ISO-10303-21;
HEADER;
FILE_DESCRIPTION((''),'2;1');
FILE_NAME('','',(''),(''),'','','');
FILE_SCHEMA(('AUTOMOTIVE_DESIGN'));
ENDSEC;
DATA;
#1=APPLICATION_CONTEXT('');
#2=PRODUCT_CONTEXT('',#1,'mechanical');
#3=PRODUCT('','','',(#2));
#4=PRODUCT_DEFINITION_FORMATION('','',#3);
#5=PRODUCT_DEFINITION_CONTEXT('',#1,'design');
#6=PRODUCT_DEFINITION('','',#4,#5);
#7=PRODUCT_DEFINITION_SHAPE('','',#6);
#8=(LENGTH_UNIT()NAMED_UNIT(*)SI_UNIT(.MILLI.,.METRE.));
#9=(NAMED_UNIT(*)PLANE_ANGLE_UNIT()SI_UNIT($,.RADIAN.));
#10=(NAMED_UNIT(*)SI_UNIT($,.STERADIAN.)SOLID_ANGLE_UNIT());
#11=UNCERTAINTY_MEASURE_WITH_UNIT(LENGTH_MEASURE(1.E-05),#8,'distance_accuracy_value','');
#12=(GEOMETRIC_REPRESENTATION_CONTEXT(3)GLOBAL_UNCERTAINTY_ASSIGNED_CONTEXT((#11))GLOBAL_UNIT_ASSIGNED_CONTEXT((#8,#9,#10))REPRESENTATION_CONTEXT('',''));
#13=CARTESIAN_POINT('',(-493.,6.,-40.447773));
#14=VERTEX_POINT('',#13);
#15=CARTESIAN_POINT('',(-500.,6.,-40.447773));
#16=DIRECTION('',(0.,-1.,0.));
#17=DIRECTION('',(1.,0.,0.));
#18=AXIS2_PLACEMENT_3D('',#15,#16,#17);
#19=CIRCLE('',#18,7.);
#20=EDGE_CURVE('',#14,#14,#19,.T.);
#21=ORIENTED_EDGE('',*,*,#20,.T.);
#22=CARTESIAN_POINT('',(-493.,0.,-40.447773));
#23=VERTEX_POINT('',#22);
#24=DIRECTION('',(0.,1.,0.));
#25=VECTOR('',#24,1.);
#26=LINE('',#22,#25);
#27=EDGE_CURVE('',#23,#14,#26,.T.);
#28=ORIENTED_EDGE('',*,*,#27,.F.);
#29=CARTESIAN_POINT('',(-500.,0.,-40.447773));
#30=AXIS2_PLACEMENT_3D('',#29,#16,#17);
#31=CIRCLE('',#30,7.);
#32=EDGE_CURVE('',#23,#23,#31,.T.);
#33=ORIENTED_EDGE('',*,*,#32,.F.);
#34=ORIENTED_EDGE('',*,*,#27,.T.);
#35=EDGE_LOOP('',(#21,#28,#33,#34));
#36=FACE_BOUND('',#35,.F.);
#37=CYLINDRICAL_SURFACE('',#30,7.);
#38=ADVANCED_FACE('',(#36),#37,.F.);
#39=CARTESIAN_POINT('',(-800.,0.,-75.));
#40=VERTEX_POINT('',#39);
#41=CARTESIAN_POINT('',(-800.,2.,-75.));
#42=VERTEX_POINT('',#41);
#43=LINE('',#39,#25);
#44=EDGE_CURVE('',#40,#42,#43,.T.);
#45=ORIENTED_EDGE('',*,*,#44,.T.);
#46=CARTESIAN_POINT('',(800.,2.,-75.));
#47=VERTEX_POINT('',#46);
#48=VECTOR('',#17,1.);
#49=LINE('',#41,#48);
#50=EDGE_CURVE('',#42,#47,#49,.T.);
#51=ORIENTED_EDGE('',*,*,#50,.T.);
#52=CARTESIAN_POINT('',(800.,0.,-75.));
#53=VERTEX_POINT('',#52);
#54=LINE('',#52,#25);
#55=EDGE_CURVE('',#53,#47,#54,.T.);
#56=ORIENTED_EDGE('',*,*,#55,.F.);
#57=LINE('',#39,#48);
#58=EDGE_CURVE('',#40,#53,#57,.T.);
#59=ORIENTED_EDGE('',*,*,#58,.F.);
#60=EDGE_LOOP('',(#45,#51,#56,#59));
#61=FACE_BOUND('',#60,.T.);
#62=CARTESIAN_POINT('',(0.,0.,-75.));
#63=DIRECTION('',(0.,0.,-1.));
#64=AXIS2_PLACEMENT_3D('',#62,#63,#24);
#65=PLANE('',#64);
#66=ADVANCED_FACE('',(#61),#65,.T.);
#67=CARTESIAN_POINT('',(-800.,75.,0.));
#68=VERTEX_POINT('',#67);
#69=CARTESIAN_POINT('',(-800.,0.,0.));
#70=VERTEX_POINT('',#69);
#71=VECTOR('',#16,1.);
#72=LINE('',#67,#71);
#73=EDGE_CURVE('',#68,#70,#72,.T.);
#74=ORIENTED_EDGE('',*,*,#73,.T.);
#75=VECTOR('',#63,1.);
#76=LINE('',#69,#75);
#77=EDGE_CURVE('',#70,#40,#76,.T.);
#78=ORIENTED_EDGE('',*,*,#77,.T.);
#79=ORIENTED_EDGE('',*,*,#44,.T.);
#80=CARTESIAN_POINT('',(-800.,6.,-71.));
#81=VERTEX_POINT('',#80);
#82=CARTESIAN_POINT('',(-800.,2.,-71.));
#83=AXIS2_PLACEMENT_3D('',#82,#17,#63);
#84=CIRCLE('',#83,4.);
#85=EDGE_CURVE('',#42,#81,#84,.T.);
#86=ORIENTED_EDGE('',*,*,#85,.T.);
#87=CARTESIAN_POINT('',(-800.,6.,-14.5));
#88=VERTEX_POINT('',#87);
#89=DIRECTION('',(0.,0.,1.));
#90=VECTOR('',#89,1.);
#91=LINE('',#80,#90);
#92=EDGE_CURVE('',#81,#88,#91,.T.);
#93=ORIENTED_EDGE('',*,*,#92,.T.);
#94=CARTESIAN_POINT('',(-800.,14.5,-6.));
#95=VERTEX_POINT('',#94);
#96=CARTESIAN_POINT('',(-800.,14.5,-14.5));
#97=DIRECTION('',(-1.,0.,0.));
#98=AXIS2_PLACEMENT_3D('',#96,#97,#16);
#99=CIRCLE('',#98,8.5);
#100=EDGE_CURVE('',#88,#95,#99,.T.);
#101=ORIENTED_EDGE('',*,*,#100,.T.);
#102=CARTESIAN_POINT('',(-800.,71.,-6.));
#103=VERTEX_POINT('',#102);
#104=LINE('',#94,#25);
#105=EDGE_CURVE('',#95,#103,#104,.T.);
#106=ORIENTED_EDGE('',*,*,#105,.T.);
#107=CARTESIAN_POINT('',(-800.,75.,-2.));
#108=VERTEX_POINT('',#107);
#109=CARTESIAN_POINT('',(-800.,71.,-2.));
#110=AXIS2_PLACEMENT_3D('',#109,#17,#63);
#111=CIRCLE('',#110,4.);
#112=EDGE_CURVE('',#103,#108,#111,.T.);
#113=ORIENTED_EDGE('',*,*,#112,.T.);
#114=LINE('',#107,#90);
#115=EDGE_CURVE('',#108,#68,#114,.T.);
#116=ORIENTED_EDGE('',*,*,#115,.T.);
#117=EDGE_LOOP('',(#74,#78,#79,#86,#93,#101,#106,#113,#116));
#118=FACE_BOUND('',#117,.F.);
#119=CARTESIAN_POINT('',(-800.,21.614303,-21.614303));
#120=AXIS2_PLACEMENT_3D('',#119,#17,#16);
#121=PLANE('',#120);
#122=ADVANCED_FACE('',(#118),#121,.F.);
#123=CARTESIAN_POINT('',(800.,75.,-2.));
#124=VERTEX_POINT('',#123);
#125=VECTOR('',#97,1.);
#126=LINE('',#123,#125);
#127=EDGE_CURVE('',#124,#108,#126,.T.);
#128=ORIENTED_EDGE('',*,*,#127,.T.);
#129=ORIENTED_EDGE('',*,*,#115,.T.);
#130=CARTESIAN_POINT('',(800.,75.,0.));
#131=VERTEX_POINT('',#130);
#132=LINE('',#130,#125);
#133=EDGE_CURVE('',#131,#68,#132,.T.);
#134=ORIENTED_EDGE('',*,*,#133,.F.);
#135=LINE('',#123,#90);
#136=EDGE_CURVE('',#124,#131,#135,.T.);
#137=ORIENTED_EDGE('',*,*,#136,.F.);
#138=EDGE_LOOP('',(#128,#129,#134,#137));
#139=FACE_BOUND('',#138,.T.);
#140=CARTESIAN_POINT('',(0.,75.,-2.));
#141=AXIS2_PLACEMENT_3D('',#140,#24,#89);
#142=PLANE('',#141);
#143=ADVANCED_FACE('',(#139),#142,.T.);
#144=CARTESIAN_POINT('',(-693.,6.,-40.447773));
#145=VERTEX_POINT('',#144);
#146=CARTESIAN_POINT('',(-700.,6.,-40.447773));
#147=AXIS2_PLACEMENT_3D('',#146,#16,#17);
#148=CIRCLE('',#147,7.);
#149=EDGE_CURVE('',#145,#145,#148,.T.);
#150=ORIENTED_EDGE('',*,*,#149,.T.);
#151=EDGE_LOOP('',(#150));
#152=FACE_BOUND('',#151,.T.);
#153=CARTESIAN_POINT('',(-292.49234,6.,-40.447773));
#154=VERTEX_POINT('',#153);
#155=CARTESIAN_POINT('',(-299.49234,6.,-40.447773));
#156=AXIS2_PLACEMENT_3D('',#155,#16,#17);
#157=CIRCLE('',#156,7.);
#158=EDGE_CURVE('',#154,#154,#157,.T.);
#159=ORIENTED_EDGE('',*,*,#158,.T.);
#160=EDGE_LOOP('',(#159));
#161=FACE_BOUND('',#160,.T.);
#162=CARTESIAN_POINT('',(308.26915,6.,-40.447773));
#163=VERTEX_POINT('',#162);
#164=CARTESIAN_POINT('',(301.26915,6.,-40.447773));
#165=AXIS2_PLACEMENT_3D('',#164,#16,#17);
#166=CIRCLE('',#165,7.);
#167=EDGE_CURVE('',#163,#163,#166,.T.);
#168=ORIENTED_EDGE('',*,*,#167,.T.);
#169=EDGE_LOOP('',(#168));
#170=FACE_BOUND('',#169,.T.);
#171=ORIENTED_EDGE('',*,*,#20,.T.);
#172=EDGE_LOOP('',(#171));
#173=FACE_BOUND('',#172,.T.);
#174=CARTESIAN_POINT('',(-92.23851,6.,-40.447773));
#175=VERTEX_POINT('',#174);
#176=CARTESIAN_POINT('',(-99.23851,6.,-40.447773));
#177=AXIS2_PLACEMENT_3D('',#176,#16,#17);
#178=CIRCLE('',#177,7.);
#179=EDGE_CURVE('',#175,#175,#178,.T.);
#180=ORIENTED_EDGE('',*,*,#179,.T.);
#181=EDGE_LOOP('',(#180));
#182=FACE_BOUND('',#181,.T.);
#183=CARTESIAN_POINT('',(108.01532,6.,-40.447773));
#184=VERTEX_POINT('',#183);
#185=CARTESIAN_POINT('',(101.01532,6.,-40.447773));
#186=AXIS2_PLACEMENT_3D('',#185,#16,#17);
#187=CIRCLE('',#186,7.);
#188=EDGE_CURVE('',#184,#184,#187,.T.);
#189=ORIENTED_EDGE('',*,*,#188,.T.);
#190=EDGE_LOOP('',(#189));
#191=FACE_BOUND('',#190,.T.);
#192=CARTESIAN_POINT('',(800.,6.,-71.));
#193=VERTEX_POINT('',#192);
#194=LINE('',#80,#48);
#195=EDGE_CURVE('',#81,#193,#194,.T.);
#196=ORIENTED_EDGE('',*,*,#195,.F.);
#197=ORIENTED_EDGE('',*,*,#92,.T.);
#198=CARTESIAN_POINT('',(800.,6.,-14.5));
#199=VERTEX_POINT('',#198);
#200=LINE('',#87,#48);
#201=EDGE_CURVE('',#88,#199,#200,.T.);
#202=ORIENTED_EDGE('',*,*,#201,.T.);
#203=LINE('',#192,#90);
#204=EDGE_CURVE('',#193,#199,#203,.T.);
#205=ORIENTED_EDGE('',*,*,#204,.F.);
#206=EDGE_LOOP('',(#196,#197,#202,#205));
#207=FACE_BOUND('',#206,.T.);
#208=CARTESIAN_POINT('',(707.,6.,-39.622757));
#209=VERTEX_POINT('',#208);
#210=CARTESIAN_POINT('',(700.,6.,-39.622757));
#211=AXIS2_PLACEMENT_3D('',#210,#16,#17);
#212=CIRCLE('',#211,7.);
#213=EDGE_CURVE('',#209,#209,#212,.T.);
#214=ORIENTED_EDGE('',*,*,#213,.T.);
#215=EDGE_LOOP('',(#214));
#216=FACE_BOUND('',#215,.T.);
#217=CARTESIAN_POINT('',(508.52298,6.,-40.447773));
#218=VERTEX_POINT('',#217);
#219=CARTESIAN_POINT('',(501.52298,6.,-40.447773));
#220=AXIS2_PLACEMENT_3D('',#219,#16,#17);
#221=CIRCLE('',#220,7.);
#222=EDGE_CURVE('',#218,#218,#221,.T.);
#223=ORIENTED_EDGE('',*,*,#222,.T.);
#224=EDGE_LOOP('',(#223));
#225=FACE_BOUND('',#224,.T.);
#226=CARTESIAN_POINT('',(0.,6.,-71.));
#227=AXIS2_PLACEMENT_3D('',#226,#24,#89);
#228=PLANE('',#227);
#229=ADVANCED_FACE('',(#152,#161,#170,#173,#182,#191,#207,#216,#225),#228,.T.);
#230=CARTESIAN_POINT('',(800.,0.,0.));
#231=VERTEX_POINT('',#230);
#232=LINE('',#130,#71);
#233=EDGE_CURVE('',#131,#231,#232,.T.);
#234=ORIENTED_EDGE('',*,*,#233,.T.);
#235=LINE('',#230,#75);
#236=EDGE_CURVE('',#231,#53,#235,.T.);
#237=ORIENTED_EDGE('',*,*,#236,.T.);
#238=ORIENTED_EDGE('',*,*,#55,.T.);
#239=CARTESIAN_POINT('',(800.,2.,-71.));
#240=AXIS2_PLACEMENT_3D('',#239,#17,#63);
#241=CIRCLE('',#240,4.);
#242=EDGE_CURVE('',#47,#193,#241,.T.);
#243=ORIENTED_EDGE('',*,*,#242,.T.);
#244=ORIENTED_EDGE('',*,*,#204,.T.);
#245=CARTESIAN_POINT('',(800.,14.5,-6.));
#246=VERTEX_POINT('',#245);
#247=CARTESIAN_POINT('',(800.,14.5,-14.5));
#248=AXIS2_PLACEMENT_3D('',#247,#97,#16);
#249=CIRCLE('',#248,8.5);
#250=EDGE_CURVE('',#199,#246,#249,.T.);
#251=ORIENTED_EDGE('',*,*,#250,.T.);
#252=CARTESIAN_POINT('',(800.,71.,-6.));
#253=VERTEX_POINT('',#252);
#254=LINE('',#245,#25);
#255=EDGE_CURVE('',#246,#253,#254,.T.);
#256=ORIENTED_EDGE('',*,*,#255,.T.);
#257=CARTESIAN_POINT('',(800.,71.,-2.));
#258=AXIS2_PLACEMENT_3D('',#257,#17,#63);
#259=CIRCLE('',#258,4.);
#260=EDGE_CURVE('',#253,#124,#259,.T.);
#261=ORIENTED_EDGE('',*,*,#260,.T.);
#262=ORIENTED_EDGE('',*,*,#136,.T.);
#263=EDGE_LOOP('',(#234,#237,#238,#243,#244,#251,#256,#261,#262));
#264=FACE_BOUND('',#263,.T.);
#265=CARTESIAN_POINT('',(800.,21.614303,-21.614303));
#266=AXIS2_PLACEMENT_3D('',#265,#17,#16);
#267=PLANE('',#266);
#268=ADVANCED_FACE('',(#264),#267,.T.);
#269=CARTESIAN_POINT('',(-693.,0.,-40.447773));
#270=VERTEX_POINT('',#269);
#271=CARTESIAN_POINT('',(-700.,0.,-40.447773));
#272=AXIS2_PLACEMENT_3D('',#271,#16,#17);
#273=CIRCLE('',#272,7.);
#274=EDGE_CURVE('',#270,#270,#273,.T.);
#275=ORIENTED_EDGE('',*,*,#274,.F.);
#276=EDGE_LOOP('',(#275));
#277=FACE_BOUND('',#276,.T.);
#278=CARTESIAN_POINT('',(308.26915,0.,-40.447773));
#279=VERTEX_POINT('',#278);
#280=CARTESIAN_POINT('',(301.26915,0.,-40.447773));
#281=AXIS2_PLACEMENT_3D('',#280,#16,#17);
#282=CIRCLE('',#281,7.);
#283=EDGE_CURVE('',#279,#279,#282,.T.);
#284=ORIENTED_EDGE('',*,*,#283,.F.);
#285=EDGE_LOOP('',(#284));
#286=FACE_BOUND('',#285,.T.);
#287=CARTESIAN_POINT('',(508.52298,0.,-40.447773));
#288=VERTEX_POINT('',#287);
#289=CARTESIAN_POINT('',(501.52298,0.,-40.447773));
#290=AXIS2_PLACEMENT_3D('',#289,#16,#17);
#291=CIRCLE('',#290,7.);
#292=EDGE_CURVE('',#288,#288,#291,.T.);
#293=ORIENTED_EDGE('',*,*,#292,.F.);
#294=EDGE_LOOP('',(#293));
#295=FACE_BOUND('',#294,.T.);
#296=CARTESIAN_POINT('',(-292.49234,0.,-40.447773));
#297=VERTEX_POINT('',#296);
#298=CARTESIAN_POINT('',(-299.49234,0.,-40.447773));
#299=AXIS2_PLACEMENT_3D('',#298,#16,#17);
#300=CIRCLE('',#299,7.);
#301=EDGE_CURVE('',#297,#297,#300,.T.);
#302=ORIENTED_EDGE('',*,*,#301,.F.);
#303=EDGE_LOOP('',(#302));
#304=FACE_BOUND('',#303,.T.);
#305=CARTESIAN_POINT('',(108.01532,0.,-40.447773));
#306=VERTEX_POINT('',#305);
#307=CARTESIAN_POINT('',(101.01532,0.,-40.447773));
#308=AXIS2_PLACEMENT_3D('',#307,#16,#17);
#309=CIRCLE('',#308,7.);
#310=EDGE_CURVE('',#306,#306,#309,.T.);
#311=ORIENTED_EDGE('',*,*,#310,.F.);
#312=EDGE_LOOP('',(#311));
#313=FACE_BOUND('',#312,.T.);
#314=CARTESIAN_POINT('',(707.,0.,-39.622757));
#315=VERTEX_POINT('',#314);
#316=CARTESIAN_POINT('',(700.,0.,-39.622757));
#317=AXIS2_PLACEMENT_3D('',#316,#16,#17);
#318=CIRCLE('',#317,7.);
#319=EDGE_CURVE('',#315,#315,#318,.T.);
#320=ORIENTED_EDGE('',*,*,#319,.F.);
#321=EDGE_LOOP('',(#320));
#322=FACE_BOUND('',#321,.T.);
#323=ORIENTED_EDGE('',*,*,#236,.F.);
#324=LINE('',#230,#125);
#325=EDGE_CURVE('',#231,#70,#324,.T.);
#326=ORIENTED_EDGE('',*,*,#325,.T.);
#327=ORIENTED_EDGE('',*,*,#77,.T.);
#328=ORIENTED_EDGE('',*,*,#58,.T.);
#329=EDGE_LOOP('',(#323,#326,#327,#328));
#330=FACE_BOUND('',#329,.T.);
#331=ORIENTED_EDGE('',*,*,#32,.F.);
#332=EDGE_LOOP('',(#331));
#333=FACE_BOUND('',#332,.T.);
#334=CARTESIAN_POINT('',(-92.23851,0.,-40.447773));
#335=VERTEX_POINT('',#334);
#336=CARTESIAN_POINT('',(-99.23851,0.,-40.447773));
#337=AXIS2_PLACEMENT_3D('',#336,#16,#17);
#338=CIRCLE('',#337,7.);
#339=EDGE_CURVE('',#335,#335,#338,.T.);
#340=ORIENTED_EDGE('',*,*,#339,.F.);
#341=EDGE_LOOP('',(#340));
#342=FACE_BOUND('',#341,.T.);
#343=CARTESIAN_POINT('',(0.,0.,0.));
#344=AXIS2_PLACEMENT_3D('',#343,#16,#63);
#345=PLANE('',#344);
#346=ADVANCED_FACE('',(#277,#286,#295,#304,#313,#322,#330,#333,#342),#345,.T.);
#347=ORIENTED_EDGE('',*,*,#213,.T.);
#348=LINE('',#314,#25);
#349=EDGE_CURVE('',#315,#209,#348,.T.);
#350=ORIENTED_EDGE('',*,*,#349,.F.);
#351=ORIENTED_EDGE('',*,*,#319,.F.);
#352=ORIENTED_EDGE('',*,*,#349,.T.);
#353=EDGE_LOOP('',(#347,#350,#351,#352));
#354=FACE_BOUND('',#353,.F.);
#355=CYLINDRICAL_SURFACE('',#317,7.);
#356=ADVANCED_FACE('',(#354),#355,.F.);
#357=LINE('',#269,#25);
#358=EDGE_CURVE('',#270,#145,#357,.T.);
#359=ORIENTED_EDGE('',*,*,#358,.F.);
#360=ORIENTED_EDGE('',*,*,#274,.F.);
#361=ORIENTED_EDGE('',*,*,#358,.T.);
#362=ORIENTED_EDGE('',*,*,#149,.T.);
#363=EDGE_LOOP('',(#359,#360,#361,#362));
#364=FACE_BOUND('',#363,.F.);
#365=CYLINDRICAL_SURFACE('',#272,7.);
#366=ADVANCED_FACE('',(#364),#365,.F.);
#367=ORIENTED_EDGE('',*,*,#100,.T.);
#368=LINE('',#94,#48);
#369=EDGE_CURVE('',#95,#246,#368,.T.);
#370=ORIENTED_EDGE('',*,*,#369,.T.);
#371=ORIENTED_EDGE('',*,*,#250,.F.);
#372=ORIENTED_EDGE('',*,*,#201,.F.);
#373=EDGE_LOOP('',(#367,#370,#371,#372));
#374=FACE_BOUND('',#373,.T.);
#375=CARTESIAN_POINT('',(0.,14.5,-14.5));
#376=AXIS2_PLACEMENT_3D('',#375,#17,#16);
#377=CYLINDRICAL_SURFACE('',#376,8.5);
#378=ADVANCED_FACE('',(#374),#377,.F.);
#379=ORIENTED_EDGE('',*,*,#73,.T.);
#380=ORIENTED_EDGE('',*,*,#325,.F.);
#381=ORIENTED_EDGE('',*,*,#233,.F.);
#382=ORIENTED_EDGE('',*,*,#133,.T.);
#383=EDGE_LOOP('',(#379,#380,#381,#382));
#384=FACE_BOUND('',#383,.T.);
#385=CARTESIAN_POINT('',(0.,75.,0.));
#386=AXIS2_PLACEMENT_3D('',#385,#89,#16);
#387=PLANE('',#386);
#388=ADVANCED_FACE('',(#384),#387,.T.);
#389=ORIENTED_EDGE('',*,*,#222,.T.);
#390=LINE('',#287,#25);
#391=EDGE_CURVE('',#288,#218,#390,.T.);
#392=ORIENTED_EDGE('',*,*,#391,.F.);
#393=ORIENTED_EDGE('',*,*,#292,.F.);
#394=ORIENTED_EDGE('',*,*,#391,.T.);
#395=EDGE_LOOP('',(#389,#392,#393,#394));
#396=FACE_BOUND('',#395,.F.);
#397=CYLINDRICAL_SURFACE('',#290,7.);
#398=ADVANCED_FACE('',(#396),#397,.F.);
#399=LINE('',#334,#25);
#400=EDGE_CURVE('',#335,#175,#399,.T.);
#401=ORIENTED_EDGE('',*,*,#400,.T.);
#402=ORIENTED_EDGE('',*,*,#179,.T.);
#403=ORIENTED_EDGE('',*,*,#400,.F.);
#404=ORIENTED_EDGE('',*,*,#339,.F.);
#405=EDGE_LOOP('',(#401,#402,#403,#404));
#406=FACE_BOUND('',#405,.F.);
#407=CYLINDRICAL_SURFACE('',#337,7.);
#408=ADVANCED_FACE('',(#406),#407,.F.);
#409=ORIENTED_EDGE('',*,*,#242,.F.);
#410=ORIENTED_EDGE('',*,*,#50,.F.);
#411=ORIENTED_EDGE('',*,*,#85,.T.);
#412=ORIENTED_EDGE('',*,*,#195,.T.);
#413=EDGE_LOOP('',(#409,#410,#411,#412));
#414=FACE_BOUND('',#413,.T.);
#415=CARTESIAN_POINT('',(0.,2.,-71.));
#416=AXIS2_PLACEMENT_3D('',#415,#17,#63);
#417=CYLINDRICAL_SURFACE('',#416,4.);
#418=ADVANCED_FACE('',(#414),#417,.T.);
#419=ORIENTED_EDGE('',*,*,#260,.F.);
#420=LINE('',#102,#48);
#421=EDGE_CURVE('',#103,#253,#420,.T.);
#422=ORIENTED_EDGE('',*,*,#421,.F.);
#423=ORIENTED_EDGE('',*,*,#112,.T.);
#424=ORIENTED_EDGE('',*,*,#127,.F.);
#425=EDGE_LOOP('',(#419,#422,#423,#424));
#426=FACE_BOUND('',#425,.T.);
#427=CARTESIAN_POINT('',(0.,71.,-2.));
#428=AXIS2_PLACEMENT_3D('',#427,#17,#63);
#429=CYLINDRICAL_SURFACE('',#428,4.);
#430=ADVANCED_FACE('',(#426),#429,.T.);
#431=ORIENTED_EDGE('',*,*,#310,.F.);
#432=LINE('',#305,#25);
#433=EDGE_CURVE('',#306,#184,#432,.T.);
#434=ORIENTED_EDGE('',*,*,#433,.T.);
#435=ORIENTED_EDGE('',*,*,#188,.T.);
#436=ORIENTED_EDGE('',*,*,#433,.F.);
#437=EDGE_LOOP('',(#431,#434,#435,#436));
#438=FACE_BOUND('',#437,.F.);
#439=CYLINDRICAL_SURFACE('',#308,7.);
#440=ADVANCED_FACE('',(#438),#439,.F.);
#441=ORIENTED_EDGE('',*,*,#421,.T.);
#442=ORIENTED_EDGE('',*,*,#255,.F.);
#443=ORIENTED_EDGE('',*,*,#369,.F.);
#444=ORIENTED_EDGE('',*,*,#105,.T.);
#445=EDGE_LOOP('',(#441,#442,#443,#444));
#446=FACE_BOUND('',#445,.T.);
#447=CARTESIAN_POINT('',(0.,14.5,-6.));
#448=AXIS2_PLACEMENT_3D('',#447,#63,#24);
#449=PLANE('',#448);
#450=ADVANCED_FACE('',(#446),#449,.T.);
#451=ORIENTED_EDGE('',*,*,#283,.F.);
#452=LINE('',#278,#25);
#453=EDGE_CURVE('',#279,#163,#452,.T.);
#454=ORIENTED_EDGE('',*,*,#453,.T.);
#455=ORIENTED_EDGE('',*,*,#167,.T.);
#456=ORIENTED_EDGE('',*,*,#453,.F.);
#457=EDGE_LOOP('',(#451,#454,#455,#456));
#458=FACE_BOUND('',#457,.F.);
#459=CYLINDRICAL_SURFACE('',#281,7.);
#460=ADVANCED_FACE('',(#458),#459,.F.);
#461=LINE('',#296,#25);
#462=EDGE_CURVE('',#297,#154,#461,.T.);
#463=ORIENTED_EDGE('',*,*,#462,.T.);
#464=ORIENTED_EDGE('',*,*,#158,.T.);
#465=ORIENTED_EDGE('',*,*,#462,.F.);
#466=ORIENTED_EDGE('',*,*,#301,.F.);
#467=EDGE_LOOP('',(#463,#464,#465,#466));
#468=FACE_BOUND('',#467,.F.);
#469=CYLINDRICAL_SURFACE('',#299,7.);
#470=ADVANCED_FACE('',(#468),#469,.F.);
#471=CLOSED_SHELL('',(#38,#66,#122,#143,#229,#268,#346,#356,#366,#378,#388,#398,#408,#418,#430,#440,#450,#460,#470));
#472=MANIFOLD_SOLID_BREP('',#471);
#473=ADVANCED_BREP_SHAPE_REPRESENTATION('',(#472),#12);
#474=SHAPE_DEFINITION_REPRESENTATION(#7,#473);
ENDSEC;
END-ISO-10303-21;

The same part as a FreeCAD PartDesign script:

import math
import FreeCAD as App
import Part
import Sketcher
from FreeCAD import Vector

doc = App.newDocument("Part")
body = doc.addObject("PartDesign::Body", "Body")
body.AllowCompound = True

# Sketch on XZ plane
sketch1 = body.newObject("Sketcher::SketchObject", "Sketch")
sketch1.AttachmentSupport = (doc.getObject("XZ_Plane"), [""])
sketch1.MapMode = "FlatFace"
sketch1.addGeometry([
    Part.Circle(Vector(-700, -40.447773, 0), Vector(0, 0, 1), 7),  # 0
    Part.Circle(Vector(700, -39.622757, 0), Vector(0, 0, 1), 7),  # 1
    Part.Circle(Vector(-500, -40.447773, 0), Vector(0, 0, 1), 7),  # 2
    Part.Circle(Vector(-299.49234, -40.447773, 0), Vector(0, 0, 1), 7),  # 3
    Part.Circle(Vector(-99.23851, -40.447773, 0), Vector(0, 0, 1), 7),  # 4
    Part.Circle(Vector(101.01532, -40.447773, 0), Vector(0, 0, 1), 7),  # 5
    Part.Circle(Vector(301.26915, -40.447773, 0), Vector(0, 0, 1), 7),  # 6
    Part.Circle(Vector(501.52298, -40.447773, 0), Vector(0, 0, 1), 7),  # 7
], False)
sketch1.addConstraint([
    Sketcher.Constraint("Equal", 0, 1),
    Sketcher.Constraint("Equal", 1, 2),
    Sketcher.Constraint("Equal", 2, 3),
    Sketcher.Constraint("Equal", 3, 4),
    Sketcher.Constraint("Equal", 4, 5),
    Sketcher.Constraint("Equal", 5, 6),
    Sketcher.Constraint("Equal", 6, 7),
    Sketcher.Constraint("Horizontal", 0, 3, 2, 3),
    Sketcher.Constraint("Horizontal", 2, 3, 3, 3),
    Sketcher.Constraint("Horizontal", 3, 3, 4, 3),
    Sketcher.Constraint("Horizontal", 4, 3, 5, 3),
    Sketcher.Constraint("Horizontal", 5, 3, 6, 3),
    Sketcher.Constraint("Horizontal", 6, 3, 7, 3),
    Sketcher.Constraint("Diameter", 0, 14.0),
    Sketcher.Constraint("DistanceX", 0, 3, -1, 1, 700.0),
    Sketcher.Constraint("DistanceX", -1, 1, 1, 3, 700.0),
    Sketcher.Constraint("DistanceX", 2, 3, -1, 1, 500.0),
    Sketcher.Constraint("DistanceX", 3, 3, -1, 1, 299.49234),
    Sketcher.Constraint("DistanceX", 4, 3, -1, 1, 99.23851),
    Sketcher.Constraint("DistanceX", -1, 1, 5, 3, 101.01532),
    Sketcher.Constraint("DistanceX", -1, 1, 6, 3, 301.26915),
    Sketcher.Constraint("DistanceX", -1, 1, 7, 3, 501.52298),
    Sketcher.Constraint("DistanceY", 0, 3, -1, 1, 40.447773),
    Sketcher.Constraint("DistanceY", 1, 3, -1, 1, 39.622757),
])
pad1 = body.newObject("PartDesign::Pad", "Pad")
pad1.Profile = sketch1
pad1.Length = 10
pad1.Reversed = True
body2 = doc.addObject("PartDesign::Body", "Body001")

# Sketch on YZ plane
sketch2 = body2.newObject("Sketcher::SketchObject", "Sketch001")
sketch2.AttachmentSupport = (doc.getObject("YZ_Plane001"), [""])
sketch2.MapMode = "FlatFace"
sketch2.addGeometry([
    Part.LineSegment(Vector(0, 0, 0), Vector(0, -75, 0)),  # 0
    Part.LineSegment(Vector(0, -75, 0), Vector(2, -75, 0)),  # 1
    Part.ArcOfCircle(Part.Circle(Vector(2, -71, 0), Vector(0, 0, 1), 4), math.radians(-90), math.radians(0)),  # 2
    Part.LineSegment(Vector(6, -71, 0), Vector(6, -14.5, 0)),  # 3
    Part.ArcOfCircle(Part.Circle(Vector(14.5, -14.5, 0), Vector(0, 0, 1), 8.5), math.radians(90), math.radians(180)),  # 4
    Part.LineSegment(Vector(14.5, -6, 0), Vector(71, -6, 0)),  # 5
    Part.ArcOfCircle(Part.Circle(Vector(71, -2, 0), Vector(0, 0, 1), 4), math.radians(-90), math.radians(0)),  # 6
    Part.LineSegment(Vector(75, -2, 0), Vector(75, 0, 0)),  # 7
    Part.LineSegment(Vector(75, 0, 0), Vector(0, 0, 0)),  # 8
], False)
sketch2.addConstraint([
    Sketcher.Constraint("Coincident", 0, 2, 1, 1),
    Sketcher.Constraint("Tangent", 1, 2, 2, 1),
    Sketcher.Constraint("Tangent", 2, 2, 3, 1),
    Sketcher.Constraint("Tangent", 3, 2, 4, 2),
    Sketcher.Constraint("Tangent", 4, 1, 5, 1),
    Sketcher.Constraint("Tangent", 5, 2, 6, 1),
    Sketcher.Constraint("Tangent", 6, 2, 7, 1),
    Sketcher.Constraint("Coincident", 7, 2, 8, 1),
    Sketcher.Constraint("Coincident", 8, 2, 0, 1),
    Sketcher.Constraint("Vertical", 0),
    Sketcher.Constraint("Horizontal", 1),
    Sketcher.Constraint("Vertical", 3),
    Sketcher.Constraint("Horizontal", 5),
    Sketcher.Constraint("Vertical", 7),
    Sketcher.Constraint("Horizontal", 8),
    Sketcher.Constraint("Coincident", 8, 2, -1, 1),
    Sketcher.Constraint("Equal", 2, 6),
    Sketcher.Constraint("Equal", 8, 0),
    Sketcher.Constraint("Equal", 5, 3),
    Sketcher.Constraint("Radius", 2, 4.0),
    Sketcher.Constraint("Radius", 4, 8.5),
    Sketcher.Constraint("DistanceX", 1, 1, 1, 2, 2.0),
    Sketcher.Constraint("DistanceX", 8, 2, 8, 1, 75.0),
])
pad2 = body2.newObject("PartDesign::Pad", "Pad001")
pad2.Profile = sketch2
pad2.Length = 1600
pad2.Midplane = True
doc.recompute()

boolean = body2.newObject("PartDesign::Boolean", "Boolean")
boolean.Type = "Cut"
boolean.addObjects([body])

doc.recompute()
